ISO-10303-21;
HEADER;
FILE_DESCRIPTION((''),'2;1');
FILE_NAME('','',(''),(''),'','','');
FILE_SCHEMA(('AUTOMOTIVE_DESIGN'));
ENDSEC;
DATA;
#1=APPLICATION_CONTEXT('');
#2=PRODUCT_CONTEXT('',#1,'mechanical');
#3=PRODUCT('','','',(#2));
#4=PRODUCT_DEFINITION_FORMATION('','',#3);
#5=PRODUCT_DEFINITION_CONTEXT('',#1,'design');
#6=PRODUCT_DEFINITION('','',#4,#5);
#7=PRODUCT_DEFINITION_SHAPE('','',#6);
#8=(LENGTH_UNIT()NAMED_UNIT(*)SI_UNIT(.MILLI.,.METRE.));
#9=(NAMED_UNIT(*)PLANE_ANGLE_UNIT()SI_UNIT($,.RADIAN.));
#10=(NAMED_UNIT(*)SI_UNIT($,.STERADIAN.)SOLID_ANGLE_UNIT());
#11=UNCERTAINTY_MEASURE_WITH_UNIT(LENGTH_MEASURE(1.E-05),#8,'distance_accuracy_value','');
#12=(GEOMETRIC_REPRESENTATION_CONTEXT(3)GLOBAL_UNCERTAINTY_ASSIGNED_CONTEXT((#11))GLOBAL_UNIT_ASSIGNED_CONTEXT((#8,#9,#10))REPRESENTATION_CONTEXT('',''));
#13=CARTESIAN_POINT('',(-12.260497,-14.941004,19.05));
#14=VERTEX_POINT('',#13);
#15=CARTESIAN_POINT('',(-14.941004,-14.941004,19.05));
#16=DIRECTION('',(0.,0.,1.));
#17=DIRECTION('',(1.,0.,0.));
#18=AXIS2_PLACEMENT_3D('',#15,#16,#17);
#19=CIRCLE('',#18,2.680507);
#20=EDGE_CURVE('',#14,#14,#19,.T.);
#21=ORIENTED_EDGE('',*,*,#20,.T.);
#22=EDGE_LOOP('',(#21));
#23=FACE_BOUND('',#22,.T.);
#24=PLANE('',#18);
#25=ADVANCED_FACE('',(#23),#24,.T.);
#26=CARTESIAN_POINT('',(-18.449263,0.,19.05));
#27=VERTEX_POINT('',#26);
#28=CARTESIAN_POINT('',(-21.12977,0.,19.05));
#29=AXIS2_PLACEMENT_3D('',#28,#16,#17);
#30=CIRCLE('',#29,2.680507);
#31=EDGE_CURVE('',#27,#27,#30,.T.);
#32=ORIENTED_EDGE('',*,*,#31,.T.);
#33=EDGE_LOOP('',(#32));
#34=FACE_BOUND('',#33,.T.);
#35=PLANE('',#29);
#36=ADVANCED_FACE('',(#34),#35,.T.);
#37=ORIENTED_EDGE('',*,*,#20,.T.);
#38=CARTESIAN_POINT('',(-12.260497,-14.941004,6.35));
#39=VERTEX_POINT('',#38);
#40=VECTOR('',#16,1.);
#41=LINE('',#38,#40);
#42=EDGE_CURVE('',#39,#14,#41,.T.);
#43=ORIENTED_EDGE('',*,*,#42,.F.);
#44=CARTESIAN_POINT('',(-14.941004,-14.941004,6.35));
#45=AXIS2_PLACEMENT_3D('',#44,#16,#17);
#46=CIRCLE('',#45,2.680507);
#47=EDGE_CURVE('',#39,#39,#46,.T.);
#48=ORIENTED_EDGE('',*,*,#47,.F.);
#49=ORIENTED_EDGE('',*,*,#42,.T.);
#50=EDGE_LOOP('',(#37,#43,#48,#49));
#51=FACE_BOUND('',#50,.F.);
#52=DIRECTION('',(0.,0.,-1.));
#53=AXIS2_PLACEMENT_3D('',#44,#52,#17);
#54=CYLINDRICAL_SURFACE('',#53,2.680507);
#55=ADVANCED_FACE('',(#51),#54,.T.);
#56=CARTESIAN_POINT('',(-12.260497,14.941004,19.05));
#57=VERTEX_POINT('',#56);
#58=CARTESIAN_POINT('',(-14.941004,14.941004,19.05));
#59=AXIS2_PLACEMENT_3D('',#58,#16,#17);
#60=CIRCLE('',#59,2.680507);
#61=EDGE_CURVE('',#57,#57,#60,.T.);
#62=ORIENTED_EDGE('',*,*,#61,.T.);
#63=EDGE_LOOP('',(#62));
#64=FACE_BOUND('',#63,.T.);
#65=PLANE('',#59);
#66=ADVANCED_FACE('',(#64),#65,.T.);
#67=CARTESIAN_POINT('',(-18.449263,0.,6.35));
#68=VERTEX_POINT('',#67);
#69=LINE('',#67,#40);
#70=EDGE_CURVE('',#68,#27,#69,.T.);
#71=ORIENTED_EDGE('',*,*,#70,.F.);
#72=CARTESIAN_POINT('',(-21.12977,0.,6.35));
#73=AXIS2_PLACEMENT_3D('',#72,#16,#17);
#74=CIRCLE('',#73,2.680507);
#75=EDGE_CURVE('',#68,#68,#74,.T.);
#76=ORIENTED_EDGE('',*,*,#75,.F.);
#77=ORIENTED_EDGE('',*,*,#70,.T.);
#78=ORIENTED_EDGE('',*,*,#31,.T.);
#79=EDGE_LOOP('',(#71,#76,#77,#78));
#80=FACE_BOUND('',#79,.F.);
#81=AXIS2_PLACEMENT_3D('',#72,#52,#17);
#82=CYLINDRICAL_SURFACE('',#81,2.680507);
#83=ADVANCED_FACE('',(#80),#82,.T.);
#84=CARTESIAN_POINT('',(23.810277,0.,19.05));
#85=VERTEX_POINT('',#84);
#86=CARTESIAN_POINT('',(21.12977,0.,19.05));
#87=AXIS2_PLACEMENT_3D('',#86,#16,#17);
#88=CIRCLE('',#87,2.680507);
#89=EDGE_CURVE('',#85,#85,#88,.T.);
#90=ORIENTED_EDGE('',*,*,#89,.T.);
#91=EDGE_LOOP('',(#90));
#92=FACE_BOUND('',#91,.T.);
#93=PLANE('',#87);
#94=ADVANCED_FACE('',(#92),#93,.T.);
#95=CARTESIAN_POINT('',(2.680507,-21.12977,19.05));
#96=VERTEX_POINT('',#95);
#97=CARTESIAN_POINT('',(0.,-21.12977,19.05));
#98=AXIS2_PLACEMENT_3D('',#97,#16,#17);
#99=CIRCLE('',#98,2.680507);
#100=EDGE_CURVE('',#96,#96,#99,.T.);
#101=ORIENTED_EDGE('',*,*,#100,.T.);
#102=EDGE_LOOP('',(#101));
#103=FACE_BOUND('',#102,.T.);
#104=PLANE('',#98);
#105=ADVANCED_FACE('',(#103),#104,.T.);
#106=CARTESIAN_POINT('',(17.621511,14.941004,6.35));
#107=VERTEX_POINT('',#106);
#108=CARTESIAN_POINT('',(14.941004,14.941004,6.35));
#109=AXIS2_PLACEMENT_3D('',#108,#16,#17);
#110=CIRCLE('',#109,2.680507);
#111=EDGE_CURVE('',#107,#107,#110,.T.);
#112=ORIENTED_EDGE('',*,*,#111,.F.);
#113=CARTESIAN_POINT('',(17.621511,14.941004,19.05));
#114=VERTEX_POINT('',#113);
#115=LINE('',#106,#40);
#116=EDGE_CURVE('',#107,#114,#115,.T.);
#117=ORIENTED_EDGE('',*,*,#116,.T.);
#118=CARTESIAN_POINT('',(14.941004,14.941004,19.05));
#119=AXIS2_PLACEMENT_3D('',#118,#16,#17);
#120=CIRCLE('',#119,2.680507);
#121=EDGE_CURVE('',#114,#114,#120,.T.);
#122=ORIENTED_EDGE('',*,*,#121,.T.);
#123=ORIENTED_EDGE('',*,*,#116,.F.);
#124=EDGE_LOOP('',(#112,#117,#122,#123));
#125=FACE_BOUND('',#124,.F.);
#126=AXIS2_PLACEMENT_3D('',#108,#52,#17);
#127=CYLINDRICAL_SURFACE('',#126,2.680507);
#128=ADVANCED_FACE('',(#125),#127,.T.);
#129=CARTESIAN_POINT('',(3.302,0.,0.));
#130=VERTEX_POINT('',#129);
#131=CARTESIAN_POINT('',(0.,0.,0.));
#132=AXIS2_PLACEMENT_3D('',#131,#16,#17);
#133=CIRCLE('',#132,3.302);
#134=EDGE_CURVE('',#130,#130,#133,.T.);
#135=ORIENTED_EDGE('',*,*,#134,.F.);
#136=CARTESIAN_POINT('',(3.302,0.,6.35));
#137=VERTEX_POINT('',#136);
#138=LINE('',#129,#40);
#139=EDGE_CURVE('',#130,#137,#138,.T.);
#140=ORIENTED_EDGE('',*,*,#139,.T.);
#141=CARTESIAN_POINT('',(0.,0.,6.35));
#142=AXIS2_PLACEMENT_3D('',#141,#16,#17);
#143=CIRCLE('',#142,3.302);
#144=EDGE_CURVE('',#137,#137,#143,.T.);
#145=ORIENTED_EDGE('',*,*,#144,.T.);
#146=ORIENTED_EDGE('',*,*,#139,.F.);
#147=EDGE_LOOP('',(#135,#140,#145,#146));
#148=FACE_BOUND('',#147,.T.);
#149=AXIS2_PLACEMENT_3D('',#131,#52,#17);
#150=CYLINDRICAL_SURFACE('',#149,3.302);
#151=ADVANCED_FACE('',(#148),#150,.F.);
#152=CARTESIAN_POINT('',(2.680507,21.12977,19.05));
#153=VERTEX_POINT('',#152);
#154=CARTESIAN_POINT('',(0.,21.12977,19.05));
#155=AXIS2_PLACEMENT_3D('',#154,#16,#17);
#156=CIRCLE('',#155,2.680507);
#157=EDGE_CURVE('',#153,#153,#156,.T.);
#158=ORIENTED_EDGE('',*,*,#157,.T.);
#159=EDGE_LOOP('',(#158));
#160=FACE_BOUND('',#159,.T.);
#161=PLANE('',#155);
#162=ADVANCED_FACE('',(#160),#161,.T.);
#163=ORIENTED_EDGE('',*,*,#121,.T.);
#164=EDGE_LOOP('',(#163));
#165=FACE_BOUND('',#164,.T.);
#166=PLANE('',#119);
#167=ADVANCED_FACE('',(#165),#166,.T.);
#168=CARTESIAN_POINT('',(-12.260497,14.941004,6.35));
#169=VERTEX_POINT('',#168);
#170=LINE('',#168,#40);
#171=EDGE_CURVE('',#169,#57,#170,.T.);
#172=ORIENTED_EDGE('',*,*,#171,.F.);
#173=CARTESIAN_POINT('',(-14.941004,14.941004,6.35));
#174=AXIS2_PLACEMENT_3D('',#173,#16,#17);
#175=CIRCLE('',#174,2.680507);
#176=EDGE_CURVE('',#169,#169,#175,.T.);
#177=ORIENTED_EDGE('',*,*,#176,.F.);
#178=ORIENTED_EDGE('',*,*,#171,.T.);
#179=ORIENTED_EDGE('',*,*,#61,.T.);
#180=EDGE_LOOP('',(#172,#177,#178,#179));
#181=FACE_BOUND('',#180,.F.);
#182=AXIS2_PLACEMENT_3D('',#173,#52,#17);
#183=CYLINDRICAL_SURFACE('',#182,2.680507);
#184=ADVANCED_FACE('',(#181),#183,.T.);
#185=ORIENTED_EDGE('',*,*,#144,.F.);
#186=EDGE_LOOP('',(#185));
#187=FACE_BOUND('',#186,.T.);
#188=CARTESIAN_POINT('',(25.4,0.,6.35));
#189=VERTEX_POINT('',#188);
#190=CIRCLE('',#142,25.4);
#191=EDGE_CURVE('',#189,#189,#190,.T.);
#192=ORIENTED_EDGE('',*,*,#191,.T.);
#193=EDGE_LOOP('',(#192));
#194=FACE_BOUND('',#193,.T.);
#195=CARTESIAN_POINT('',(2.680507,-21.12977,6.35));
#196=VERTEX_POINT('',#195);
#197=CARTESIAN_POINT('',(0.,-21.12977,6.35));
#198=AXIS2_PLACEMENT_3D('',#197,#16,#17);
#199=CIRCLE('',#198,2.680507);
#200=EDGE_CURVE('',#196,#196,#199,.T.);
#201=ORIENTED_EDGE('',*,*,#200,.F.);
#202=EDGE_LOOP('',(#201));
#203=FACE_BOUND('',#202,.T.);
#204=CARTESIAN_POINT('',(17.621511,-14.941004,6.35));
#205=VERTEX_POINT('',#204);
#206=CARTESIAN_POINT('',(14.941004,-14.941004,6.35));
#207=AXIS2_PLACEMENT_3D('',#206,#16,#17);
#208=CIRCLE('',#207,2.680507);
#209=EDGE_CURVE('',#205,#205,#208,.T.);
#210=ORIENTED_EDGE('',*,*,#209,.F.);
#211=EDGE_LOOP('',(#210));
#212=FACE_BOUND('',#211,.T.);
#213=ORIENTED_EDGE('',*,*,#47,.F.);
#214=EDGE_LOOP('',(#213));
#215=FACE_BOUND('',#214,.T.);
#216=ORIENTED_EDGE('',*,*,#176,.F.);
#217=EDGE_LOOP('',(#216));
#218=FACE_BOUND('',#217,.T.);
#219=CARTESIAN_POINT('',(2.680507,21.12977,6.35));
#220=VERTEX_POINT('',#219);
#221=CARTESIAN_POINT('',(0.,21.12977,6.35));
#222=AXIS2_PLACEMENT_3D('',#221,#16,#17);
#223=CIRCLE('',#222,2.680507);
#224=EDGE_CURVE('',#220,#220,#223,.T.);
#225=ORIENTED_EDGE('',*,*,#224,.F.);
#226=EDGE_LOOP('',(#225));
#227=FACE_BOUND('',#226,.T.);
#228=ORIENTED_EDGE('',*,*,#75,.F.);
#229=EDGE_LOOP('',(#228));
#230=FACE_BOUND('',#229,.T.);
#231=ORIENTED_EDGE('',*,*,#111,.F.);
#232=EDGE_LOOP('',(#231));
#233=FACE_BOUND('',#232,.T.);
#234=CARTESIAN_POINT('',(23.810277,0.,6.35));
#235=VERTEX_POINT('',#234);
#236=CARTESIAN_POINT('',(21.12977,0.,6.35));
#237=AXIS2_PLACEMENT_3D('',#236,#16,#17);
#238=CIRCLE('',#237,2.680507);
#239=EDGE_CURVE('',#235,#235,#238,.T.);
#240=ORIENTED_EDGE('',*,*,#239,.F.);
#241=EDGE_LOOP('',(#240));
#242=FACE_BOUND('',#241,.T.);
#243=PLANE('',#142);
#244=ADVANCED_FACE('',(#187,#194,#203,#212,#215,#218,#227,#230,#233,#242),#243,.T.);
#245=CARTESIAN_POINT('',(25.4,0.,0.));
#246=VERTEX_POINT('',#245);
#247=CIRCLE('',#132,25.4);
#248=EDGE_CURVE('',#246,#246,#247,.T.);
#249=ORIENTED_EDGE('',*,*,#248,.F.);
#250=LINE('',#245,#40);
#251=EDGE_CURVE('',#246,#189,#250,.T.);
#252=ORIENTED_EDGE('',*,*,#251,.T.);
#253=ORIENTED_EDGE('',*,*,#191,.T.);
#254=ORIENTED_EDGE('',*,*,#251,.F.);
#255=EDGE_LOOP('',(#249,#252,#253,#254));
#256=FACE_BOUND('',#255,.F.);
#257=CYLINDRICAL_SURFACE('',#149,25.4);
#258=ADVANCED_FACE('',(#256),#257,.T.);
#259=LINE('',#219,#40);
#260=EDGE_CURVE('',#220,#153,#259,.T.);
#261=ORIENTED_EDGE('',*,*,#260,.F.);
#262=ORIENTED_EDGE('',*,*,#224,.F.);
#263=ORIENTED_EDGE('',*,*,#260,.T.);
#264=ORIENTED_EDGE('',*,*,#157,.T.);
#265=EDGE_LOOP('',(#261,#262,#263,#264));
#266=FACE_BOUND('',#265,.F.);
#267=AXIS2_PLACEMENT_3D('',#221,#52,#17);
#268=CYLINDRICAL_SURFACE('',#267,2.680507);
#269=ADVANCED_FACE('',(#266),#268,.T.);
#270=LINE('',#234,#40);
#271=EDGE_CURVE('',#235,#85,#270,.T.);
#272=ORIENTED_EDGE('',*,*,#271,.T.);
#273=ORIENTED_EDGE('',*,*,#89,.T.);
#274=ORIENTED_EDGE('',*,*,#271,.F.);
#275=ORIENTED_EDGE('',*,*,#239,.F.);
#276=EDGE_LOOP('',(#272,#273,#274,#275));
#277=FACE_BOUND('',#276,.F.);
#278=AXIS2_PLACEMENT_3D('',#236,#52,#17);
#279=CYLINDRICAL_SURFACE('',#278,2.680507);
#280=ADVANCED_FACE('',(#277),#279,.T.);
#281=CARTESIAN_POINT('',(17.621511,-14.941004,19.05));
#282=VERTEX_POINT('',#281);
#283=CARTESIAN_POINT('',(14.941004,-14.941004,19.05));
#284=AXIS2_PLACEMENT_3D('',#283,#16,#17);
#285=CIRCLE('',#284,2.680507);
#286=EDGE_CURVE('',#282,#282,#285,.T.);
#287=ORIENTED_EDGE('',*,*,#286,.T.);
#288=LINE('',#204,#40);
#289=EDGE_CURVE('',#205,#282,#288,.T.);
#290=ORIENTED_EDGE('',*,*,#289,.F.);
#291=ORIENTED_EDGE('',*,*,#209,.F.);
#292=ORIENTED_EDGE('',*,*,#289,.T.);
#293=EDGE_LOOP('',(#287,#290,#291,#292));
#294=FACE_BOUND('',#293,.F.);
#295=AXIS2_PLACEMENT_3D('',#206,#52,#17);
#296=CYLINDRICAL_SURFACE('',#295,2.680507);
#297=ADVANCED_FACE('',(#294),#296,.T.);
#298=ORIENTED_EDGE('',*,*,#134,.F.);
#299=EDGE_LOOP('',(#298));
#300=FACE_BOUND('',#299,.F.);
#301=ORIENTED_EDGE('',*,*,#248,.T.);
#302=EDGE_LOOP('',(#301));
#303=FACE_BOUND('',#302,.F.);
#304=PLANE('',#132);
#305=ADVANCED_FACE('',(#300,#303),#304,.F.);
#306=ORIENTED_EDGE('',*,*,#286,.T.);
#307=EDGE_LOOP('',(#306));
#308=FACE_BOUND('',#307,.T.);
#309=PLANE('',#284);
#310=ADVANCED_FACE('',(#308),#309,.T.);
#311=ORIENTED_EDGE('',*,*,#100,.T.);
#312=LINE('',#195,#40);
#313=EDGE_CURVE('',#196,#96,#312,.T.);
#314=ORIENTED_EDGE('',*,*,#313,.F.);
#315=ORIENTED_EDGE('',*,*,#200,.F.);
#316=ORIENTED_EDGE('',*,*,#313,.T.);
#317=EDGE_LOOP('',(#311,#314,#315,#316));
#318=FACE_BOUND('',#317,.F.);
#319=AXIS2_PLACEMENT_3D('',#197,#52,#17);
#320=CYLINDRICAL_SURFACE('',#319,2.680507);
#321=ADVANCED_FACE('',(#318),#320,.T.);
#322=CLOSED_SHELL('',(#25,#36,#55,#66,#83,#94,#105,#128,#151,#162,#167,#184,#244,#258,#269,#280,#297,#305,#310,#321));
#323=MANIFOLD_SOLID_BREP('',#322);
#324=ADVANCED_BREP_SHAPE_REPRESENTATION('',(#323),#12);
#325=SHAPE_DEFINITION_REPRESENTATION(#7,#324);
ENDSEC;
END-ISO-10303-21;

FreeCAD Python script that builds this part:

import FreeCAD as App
import Part
import Sketcher
Q = App.Units.Quantity

doc = App.newDocument("Part")
params = doc.addObject("Spreadsheet::Sheet", "Params")
for row, (alias, value) in enumerate([
    ("sketch1_diameter", "2 in"),
    ("sketch1_diameter2", "0.26 in"),
    ("pad1_length", "0.25 in"),
    ("pad2_length", "0.5 in"),
], start=1):
    params.set(f"A{row}", alias)
    params.set(f"B{row}", "=" + value)
    params.setAlias(f"B{row}", alias)

body = doc.addObject("PartDesign::Body", "Body")

sketch1 = doc.addObject("Sketcher::SketchObject", "Sketch")
body.addObject(sketch1)
sketch1.AttachmentSupport = (doc.XY_Plane, [""])
sketch1.MapMode = "FlatFace"
sketch1.addGeometry(Part.Circle(App.Vector(0, 0, 0), App.Vector(0, 0, 1), 25.4), False)
sketch1.addGeometry(Part.Circle(App.Vector(0, 0, 0), App.Vector(0, 0, 1), 3.3), False)
sketch1.addConstraint(Sketcher.Constraint("Coincident", 0, 3, -1, 1))
sketch1.addConstraint(Sketcher.Constraint("Coincident", 1, 3, -1, 1))
sketch1.addConstraint(Sketcher.Constraint("Diameter", 0, Q("2 in")))
sketch1.addConstraint(Sketcher.Constraint("Diameter", 1, Q("0.26 in")))
sketch1.setExpression("Constraints[2]", "Params.sketch1_diameter")
sketch1.setExpression("Constraints[3]", "Params.sketch1_diameter2")
pad1 = doc.addObject("PartDesign::Pad", "Pad")
body.addObject(pad1)
pad1.Profile = sketch1
pad1.setExpression("Length", "Params.pad1_length")

sketch2 = doc.addObject("Sketcher::SketchObject", "Sketch001")
body.addObject(sketch2)
sketch2.AttachmentSupport = (doc.XY_Plane, [""])
sketch2.MapMode = "FlatFace"
sketch2.AttachmentOffset = App.Placement(App.Vector(0, 0, 0.25 * 25.4), App.Rotation())
sketch2.addGeometry(Part.Circle(App.Vector(0, 21.1, 0), App.Vector(0, 0, 1), 2.7), False)
sketch2.addGeometry(Part.Circle(App.Vector(-14.9, 14.9, 0), App.Vector(0, 0, 1), 2.7), False)
sketch2.addGeometry(Part.Circle(App.Vector(-21.1, 0, 0), App.Vector(0, 0, 1), 2.7), False)
sketch2.addGeometry(Part.Circle(App.Vector(-14.9, -14.9, 0), App.Vector(0, 0, 1), 2.7), False)
sketch2.addGeometry(Part.Circle(App.Vector(0, -21.1, 0), App.Vector(0, 0, 1), 2.7), False)
sketch2.addGeometry(Part.Circle(App.Vector(21.1, 0, 0), App.Vector(0, 0, 1), 2.7), False)
sketch2.addGeometry(Part.Circle(App.Vector(14.9, 14.9, 0), App.Vector(0, 0, 1), 2.7), False)
sketch2.addGeometry(Part.Circle(App.Vector(14.9, -14.9, 0), App.Vector(0, 0, 1), 2.7), False)
sketch2.addConstraint(Sketcher.Constraint("Equal", 0, 1))
sketch2.addConstraint(Sketcher.Constraint("Equal", 1, 2))
sketch2.addConstraint(Sketcher.Constraint("Equal", 2, 3))
sketch2.addConstraint(Sketcher.Constraint("Equal", 3, 4))
sketch2.addConstraint(Sketcher.Constraint("Equal", 4, 5))
sketch2.addConstraint(Sketcher.Constraint("Equal", 5, 6))
sketch2.addConstraint(Sketcher.Constraint("Equal", 6, 7))
sketch2.addConstraint(Sketcher.Constraint("Symmetric", 0, 3, 4, 3, -1, 1))
sketch2.addConstraint(Sketcher.Constraint("Symmetric", 2, 3, 5, 3, -1, 1))
sketch2.addConstraint(Sketcher.Constraint("Symmetric", 3, 3, 6, 3, -1, 1))
sketch2.addConstraint(Sketcher.Constraint("Symmetric", 1, 3, 7, 3, -1, 1))
sketch2.addConstraint(Sketcher.Constraint("Symmetric", 1, 3, 6, 3, -2))
sketch2.addConstraint(Sketcher.Constraint("PointOnObject", 0, 3, -2))
sketch2.addConstraint(Sketcher.Constraint("PointOnObject", 2, 3, -1))
sketch2.addConstraint(Sketcher.Constraint("Diameter", 0, 5.361014))
sketch2.addConstraint(Sketcher.Constraint("DistanceY", -1, 1, 0, 3, 21.12977))
sketch2.addConstraint(Sketcher.Constraint("DistanceX", 2, 3, -1, 1, 21.12977))
sketch2.addConstraint(Sketcher.Constraint("DistanceX", 1, 3, -1, 1, 14.941004))
sketch2.addConstraint(Sketcher.Constraint("DistanceY", -1, 1, 1, 3, 14.941004))
pad2 = doc.addObject("PartDesign::Pad", "Pad001")
body.addObject(pad2)
pad2.Profile = sketch2
pad2.setExpression("Length", "Params.pad2_length")

doc.recompute()
